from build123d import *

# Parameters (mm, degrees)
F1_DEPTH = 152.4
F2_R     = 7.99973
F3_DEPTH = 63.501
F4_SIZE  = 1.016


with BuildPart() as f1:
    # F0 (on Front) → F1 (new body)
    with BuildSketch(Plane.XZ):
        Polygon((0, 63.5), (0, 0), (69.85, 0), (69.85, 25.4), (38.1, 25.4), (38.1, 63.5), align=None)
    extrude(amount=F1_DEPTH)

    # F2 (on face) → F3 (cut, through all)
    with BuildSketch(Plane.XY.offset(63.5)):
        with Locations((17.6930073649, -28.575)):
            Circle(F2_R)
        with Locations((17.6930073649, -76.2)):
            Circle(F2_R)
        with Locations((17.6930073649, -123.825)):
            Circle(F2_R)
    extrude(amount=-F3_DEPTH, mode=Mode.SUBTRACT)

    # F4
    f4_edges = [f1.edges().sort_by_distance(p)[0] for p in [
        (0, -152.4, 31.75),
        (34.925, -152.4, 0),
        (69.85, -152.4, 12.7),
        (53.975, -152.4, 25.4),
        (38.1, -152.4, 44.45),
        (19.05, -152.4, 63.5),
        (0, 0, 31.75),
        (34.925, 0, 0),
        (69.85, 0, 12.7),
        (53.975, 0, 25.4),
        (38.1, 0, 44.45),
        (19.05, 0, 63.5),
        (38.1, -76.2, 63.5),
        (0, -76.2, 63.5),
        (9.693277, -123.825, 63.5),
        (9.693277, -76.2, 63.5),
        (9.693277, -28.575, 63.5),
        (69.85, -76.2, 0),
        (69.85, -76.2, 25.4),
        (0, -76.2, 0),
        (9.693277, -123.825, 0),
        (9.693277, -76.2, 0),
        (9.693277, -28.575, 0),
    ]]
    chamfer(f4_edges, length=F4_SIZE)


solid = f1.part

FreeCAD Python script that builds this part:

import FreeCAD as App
import Part
import Sketcher
Q = App.Units.Quantity


def edges_at(feature, points):
    """Names of the edges that pass closest to the given points."""
    edges = feature.Shape.Edges
    near = lambda p: min(range(len(edges)), key=lambda i: edges[i].distToShape(Part.Vertex(*p))[0])
    return sorted({f"Edge{near(p) + 1}" for p in points})

doc = App.newDocument("Part")
params = doc.addObject("Spreadsheet::Sheet", "Params")
for row, (alias, value) in enumerate([
    ("sketch1_height", "1 in"),
    ("sketch1_width", "1.5 in"),
    ("sketch1_width2", "2.75 in"),
    ("pad1_length", "6 in"),
    ("chamfer_size", "0.04 in"),
], start=1):
    params.set(f"A{row}", alias)
    params.set(f"B{row}", "=" + value)
    params.setAlias(f"B{row}", alias)

body = doc.addObject("PartDesign::Body", "Body")

# Sketch on XZ plane
sketch1 = doc.addObject("Sketcher::SketchObject", "Sketch")
body.addObject(sketch1)
sketch1.AttachmentSupport = (doc.XZ_Plane, [""])
sketch1.MapMode = "FlatFace"
sketch1.addGeometry(Part.LineSegment(App.Vector(0, 63.5, 0), App.Vector(0, 0, 0)), False)
sketch1.addGeometry(Part.LineSegment(App.Vector(0, 0, 0), App.Vector(69.85, 0, 0)), False)
sketch1.addGeometry(Part.LineSegment(App.Vector(69.85, 0, 0), App.Vector(69.85, 25.4, 0)), False)
sketch1.addGeometry(Part.LineSegment(App.Vector(69.85, 25.4, 0), App.Vector(38.1, 25.4, 0)), False)
sketch1.addGeometry(Part.LineSegment(App.Vector(38.1, 25.4, 0), App.Vector(38.1, 63.5, 0)), False)
sketch1.addGeometry(Part.LineSegment(App.Vector(38.1, 63.5, 0), App.Vector(0, 63.5, 0)), False)
sketch1.addConstraint(Sketcher.Constraint("Coincident", 0, 2, 1, 1))
sketch1.addConstraint(Sketcher.Constraint("Coincident", 1, 2, 2, 1))
sketch1.addConstraint(Sketcher.Constraint("Coincident", 2, 2, 3, 1))
sketch1.addConstraint(Sketcher.Constraint("Coincident", 3, 2, 4, 1))
sketch1.addConstraint(Sketcher.Constraint("Coincident", 4, 2, 5, 1))
sketch1.addConstraint(Sketcher.Constraint("Coincident", 5, 2, 0, 1))
sketch1.addConstraint(Sketcher.Constraint("Vertical", 0))
sketch1.addConstraint(Sketcher.Constraint("Horizontal", 1))
sketch1.addConstraint(Sketcher.Constraint("Vertical", 2))
sketch1.addConstraint(Sketcher.Constraint("Horizontal", 3))
sketch1.addConstraint(Sketcher.Constraint("Vertical", 4))
sketch1.addConstraint(Sketcher.Constraint("Horizontal", 5))
sketch1.addConstraint(Sketcher.Constraint("Coincident", 0, 2, -1, 1))
sketch1.addConstraint(Sketcher.Constraint("Equal", 5, 4))
sketch1.addConstraint(Sketcher.Constraint("DistanceY", 2, 1, 2, 2, Q("1 in")))
sketch1.addConstraint(Sketcher.Constraint("DistanceX", 5, 2, 5, 1, Q("1.5 in")))
sketch1.addConstraint(Sketcher.Constraint("DistanceX", 1, 1, 1, 2, Q("2.75 in")))
sketch1.setExpression("Constraints[14]", "Params.sketch1_height")
sketch1.setExpression("Constraints[15]", "Params.sketch1_width")
sketch1.setExpression("Constraints[16]", "Params.sketch1_width2")
pad1 = doc.addObject("PartDesign::Pad", "Pad")
body.addObject(pad1)
pad1.Profile = sketch1
pad1.setExpression("Length", "Params.pad1_length")

# Sketch on XY plane
sketch2 = doc.addObject("Sketcher::SketchObject", "Sketch001")
body.addObject(sketch2)
sketch2.AttachmentSupport = (doc.XY_Plane, [""])
sketch2.MapMode = "FlatFace"
sketch2.AttachmentOffset = App.Placement(App.Vector(0, 0, 2.5 * 25.4), App.Rotation())
sketch2.addGeometry(Part.Circle(App.Vector(17.693007, -28.575, 0), App.Vector(0, 0, 1), 7.99973), False)
sketch2.addGeometry(Part.Circle(App.Vector(17.693007, -76.2, 0), App.Vector(0, 0, 1), 7.99973), False)
sketch2.addGeometry(Part.Circle(App.Vector(17.693007, -123.825, 0), App.Vector(0, 0, 1), 7.99973), False)
sketch2.addConstraint(Sketcher.Constraint("Equal", 0, 1))
sketch2.addConstraint(Sketcher.Constraint("Equal", 1, 2))
sketch2.addConstraint(Sketcher.Constraint("Vertical", 0, 3, 1, 3))
sketch2.addConstraint(Sketcher.Constraint("Vertical", 1, 3, 2, 3))
sketch2.addConstraint(Sketcher.Constraint("DistanceY", 1, 3, -1, 1, Q("3 in")))
sketch2.addConstraint(Sketcher.Constraint("Diameter", 0, Q("0.6299 in")))
sketch2.addConstraint(Sketcher.Constraint("DistanceY", 2, 3, 0, 3, Q("3.75 in")))
sketch2.addConstraint(Sketcher.Constraint("DistanceY", 0, 3, -1, 1, Q("1.125 in")))
sketch2.addConstraint(Sketcher.Constraint("DistanceX", -1, 1, 0, 3, 17.693007))
pocket1 = doc.addObject("PartDesign::Pocket", "Pocket")
body.addObject(pocket1)
pocket1.Profile = sketch2
pocket1.Type = "ThroughAll"
doc.recompute()

chamfer = doc.addObject("PartDesign::Chamfer", "Chamfer")
body.addObject(chamfer)
chamfer.Base = (pocket1, edges_at(pocket1, [
    (0, -152.4, 31.75),
    (34.925, -152.4, 0),
    (69.85, -152.4, 12.7),
    (53.975, -152.4, 25.4),
    (38.1, -152.4, 44.45),
    (19.05, -152.4, 63.5),
    (0, 0, 31.75),
    (34.925, 0, 0),
    (69.85, 0, 12.7),
    (53.975, 0, 25.4),
    (38.1, 0, 44.45),
    (19.05, 0, 63.5),
    (38.1, -76.2, 63.5),
    (0, -76.2, 63.5),
    (9.693, -123.825, 63.5),
    (9.693, -76.2, 63.5),
    (9.693, -28.575, 63.5),
    (69.85, -76.2, 0),
    (69.85, -76.2, 25.4),
    (0, -76.2, 0),
    (9.693, -123.825, 0),
    (9.693, -76.2, 0),
    (9.693, -28.575, 0),
]))
chamfer.setExpression("Size", "Params.chamfer_size")

doc.recompute()
